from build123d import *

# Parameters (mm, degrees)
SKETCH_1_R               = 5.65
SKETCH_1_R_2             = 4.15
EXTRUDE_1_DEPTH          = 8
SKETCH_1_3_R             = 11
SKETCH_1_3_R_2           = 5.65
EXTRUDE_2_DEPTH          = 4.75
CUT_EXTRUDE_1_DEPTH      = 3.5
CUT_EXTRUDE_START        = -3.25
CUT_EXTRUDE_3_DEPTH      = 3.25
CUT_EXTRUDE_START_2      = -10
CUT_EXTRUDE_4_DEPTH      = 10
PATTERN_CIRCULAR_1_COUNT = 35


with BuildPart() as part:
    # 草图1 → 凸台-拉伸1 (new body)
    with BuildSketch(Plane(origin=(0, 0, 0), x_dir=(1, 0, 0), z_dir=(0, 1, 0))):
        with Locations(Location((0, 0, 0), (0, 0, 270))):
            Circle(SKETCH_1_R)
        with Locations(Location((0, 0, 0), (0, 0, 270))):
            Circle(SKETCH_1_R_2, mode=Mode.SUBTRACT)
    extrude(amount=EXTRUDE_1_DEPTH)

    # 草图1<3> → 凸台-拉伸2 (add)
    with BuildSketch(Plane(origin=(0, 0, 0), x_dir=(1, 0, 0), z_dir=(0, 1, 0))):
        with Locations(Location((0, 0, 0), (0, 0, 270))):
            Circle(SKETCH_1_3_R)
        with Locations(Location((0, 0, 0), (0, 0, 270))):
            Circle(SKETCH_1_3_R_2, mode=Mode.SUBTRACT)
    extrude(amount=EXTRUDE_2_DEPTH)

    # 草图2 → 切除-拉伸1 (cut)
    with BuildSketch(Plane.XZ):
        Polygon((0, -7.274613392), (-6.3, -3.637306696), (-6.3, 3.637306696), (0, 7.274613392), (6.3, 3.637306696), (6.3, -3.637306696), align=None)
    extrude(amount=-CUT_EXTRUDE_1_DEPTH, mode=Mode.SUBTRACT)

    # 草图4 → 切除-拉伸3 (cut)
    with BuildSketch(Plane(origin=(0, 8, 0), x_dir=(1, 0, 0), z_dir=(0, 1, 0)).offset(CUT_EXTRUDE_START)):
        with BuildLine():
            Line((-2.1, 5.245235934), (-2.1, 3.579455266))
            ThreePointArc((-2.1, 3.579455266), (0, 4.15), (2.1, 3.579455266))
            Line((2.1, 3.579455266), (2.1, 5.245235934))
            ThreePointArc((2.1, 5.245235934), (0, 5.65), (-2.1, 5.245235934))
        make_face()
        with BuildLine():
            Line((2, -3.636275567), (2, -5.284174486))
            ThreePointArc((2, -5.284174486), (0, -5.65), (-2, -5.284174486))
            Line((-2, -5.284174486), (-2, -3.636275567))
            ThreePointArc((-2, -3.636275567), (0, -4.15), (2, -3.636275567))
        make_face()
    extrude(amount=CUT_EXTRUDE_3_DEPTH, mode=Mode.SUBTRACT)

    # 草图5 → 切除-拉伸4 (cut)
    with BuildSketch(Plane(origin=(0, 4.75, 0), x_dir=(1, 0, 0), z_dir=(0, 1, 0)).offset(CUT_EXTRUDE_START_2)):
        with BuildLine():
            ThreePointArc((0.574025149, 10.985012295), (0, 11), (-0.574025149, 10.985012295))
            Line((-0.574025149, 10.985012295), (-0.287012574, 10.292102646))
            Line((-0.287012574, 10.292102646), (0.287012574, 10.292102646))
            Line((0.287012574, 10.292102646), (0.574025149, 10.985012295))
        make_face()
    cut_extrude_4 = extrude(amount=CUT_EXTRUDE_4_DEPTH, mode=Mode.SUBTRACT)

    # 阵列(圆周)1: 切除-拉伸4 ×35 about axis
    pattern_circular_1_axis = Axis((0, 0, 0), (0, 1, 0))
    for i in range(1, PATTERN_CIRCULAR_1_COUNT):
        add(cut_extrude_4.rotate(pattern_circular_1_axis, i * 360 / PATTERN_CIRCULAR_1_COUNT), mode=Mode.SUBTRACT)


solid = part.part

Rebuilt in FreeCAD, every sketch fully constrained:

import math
import FreeCAD as App
import Part
import Sketcher
from FreeCAD import Vector
Q = App.Units.Quantity


def add_polygon(sketch, points):
    """Adds a closed chain of lines whose ends are joined by coincident constraints."""
    first, n = sketch.GeometryCount, len(points)
    for a, b in zip(points, points[1:] + points[:1]):
        sketch.addGeometry(Part.LineSegment(App.Vector(*a, 0), App.Vector(*b, 0)), False)
    for i in range(n):
        sketch.addConstraint(Sketcher.Constraint("Coincident", first + i, 2, first + (i + 1) % n, 1))

doc = App.newDocument("Part")
body = doc.addObject("PartDesign::Body", "Body")

# Sketch on XZ plane
sketch1 = doc.addObject("Sketcher::SketchObject", "Sketch")
body.addObject(sketch1)
sketch1.AttachmentSupport = (doc.XZ_Plane, [""])
sketch1.MapMode = "FlatFace"
sketch1.addGeometry(Part.Circle(Vector(0, 0, 0), Vector(0, 0, 1), 5.65), False)
sketch1.addGeometry(Part.Circle(Vector(0, 0, 0), Vector(0, 0, 1), 4.15), False)
sketch1.addConstraint(Sketcher.Constraint("Coincident", 0, 3, -1, 1))
sketch1.addConstraint(Sketcher.Constraint("Coincident", 1, 3, -1, 1))
sketch1.addConstraint(Sketcher.Constraint("Diameter", 0, Q("11.3 mm")))
sketch1.addConstraint(Sketcher.Constraint("Diameter", 1, Q("8.3 mm")))
pad1 = doc.addObject("PartDesign::Pad", "Pad")
body.addObject(pad1)
pad1.Profile = sketch1
pad1.Length = 8
pad1.Reversed = True

# Sketch on XZ plane
sketch2 = doc.addObject("Sketcher::SketchObject", "Sketch001")
body.addObject(sketch2)
sketch2.AttachmentSupport = (doc.XZ_Plane, [""])
sketch2.MapMode = "FlatFace"
sketch2.addGeometry(Part.Circle(Vector(0, 0, 0), Vector(0, 0, 1), 11), False)
sketch2.addGeometry(Part.Circle(Vector(0, 0, 0), Vector(0, 0, 1), 5.65), False)
sketch2.addConstraint(Sketcher.Constraint("Coincident", 0, 3, -1, 1))
sketch2.addConstraint(Sketcher.Constraint("Coincident", 1, 3, -1, 1))
sketch2.addConstraint(Sketcher.Constraint("Diameter", 0, Q("22 mm")))
sketch2.addConstraint(Sketcher.Constraint("Diameter", 1, Q("11.3 mm")))
pad2 = doc.addObject("PartDesign::Pad", "Pad001")
body.addObject(pad2)
pad2.Profile = sketch2
pad2.Length = 4.75
pad2.Reversed = True

# Sketch on XZ plane
sketch3 = doc.addObject("Sketcher::SketchObject", "Sketch002")
body.addObject(sketch3)
sketch3.AttachmentSupport = (doc.XZ_Plane, [""])
sketch3.MapMode = "FlatFace"
add_polygon(sketch3, [(-6.3, -3.637307), (0, -7.274613), (6.3, -3.637307), (6.3, 3.637307), (0, 7.274613), (-6.3, 3.637307)])  # lines 0-5
sketch3.addConstraint(Sketcher.Constraint("Vertical", 2))
sketch3.addConstraint(Sketcher.Constraint("Vertical", 5))
sketch3.addConstraint(Sketcher.Constraint("Symmetric", 0, 2, 3, 2, -1, 1))
sketch3.addConstraint(Sketcher.Constraint("Symmetric", 1, 2, 4, 2, -1, 1))
sketch3.addConstraint(Sketcher.Constraint("PointOnObject", 0, 2, -2))
sketch3.addConstraint(Sketcher.Constraint("Parallel", 0, 3))
sketch3.addConstraint(Sketcher.Constraint("Horizontal", 2, 2, 4, 2))
sketch3.addConstraint(Sketcher.Constraint("Angle", 0, Q("-30 deg")))
sketch3.addConstraint(Sketcher.Constraint("DistanceX", -1, 1, 1, 2, Q("6.3 mm")))
sketch3.addConstraint(Sketcher.Constraint("DistanceY", 2, 1, 2, 2, Q("7.274613 mm")))
pocket1 = doc.addObject("PartDesign::Pocket", "Pocket")
body.addObject(pocket1)
pocket1.Profile = sketch3
pocket1.Length = 3.5

# Sketch on XZ plane
sketch4 = doc.addObject("Sketcher::SketchObject", "Sketch003")
body.addObject(sketch4)
sketch4.AttachmentSupport = (doc.XZ_Plane, [""])
sketch4.MapMode = "FlatFace"
sketch4.AttachmentOffset = App.Placement(Vector(0, 0, -4.75), App.Rotation())
sketch4.addGeometry(Part.LineSegment(Vector(-2.1, -5.245236, 0), Vector(-2.1, -3.579455, 0)), False)
sketch4.addGeometry(Part.ArcOfCircle(Part.Circle(Vector(0, 0, 0), Vector(0, 0, 1), 4.15), math.radians(-120.399358), math.radians(-59.600642)), False)
sketch4.addGeometry(Part.LineSegment(Vector(2.1, -3.579455, 0), Vector(2.1, -5.245236, 0)), False)
sketch4.addGeometry(Part.ArcOfCircle(Part.Circle(Vector(0, 0, 0), Vector(0, 0, 1), 5.65), math.radians(-111.819352), math.radians(-68.180648)), False)
sketch4.addGeometry(Part.LineSegment(Vector(2, 5.284174, 0), Vector(2, 3.636276, 0)), False)
sketch4.addGeometry(Part.ArcOfCircle(Part.Circle(Vector(0, 0, 0), Vector(0, 0, 1), 4.15), math.radians(61.18862), math.radians(118.81138)), False)
sketch4.addGeometry(Part.LineSegment(Vector(-2, 3.636276, 0), Vector(-2, 5.284174, 0)), False)
sketch4.addGeometry(Part.ArcOfCircle(Part.Circle(Vector(0, 0, 0), Vector(0, 0, 1), 5.65), math.radians(69.268915), math.radians(110.731085)), False)
sketch4.addConstraint(Sketcher.Constraint("Coincident", 0, 2, 1, 1))
sketch4.addConstraint(Sketcher.Constraint("Coincident", 1, 2, 2, 1))
sketch4.addConstraint(Sketcher.Constraint("Coincident", 2, 2, 3, 2))
sketch4.addConstraint(Sketcher.Constraint("Coincident", 3, 1, 0, 1))
sketch4.addConstraint(Sketcher.Constraint("Coincident", 4, 2, 5, 1))
sketch4.addConstraint(Sketcher.Constraint("Coincident", 5, 2, 6, 1))
sketch4.addConstraint(Sketcher.Constraint("Coincident", 6, 2, 7, 2))
sketch4.addConstraint(Sketcher.Constraint("Coincident", 7, 1, 4, 1))
sketch4.addConstraint(Sketcher.Constraint("Vertical", 0))
sketch4.addConstraint(Sketcher.Constraint("Vertical", 2))
sketch4.addConstraint(Sketcher.Constraint("Vertical", 4))
sketch4.addConstraint(Sketcher.Constraint("Vertical", 6))
sketch4.addConstraint(Sketcher.Constraint("Coincident", 1, 3, -1, 1))
sketch4.addConstraint(Sketcher.Constraint("Coincident", 3, 3, -1, 1))
sketch4.addConstraint(Sketcher.Constraint("Coincident", 5, 3, -1, 1))
sketch4.addConstraint(Sketcher.Constraint("Coincident", 7, 3, -1, 1))
sketch4.addConstraint(Sketcher.Constraint("Equal", 1, 5))
sketch4.addConstraint(Sketcher.Constraint("Equal", 3, 7))
sketch4.addConstraint(Sketcher.Constraint("Horizontal", 0, 2, 1, 2))
sketch4.addConstraint(Sketcher.Constraint("Horizontal", 4, 2, 5, 2))
sketch4.addConstraint(Sketcher.Constraint("Radius", 1, Q("4.15 mm")))
sketch4.addConstraint(Sketcher.Constraint("Radius", 3, Q("5.65 mm")))
sketch4.addConstraint(Sketcher.Constraint("DistanceX", -1, 1, 4, 2, Q("2 mm")))
sketch4.addConstraint(Sketcher.Constraint("DistanceX", 0, 2, -1, 1, Q("2.1 mm")))
pocket2 = doc.addObject("PartDesign::Pocket", "Pocket001")
body.addObject(pocket2)
pocket2.Profile = sketch4
pocket2.Length = 3.25

# Sketch on XZ plane
sketch5 = doc.addObject("Sketcher::SketchObject", "Sketch004")
body.addObject(sketch5)
sketch5.AttachmentSupport = (doc.XZ_Plane, [""])
sketch5.MapMode = "FlatFace"
sketch5.AttachmentOffset = App.Placement(Vector(0, 0, 5.25), App.Rotation())
sketch5.addGeometry(Part.ArcOfCircle(Part.Circle(Vector(0, 0, 0), Vector(0, 0, 1), 11), math.radians(-92.991288), math.radians(-87.008712)), False)
sketch5.addGeometry(Part.LineSegment(Vector(-0.574025, -10.985012, 0), Vector(-0.287013, -10.292103, 0)), False)
sketch5.addGeometry(Part.LineSegment(Vector(-0.287013, -10.292103, 0), Vector(0.287013, -10.292103, 0)), False)
sketch5.addGeometry(Part.LineSegment(Vector(0.287013, -10.292103, 0), Vector(0.574025, -10.985012, 0)), False)
sketch5.addConstraint(Sketcher.Constraint("Coincident", 0, 1, 1, 1))
sketch5.addConstraint(Sketcher.Constraint("Coincident", 1, 2, 2, 1))
sketch5.addConstraint(Sketcher.Constraint("Coincident", 2, 2, 3, 1))
sketch5.addConstraint(Sketcher.Constraint("Coincident", 3, 2, 0, 2))
sketch5.addConstraint(Sketcher.Constraint("Horizontal", 2))
sketch5.addConstraint(Sketcher.Constraint("Coincident", 0, 3, -1, 1))
sketch5.addConstraint(Sketcher.Constraint("Horizontal", 0, 1, 3, 2))
sketch5.addConstraint(Sketcher.Constraint("Equal", 1, 3))
sketch5.addConstraint(Sketcher.Constraint("Radius", 0, Q("11 mm")))
sketch5.addConstraint(Sketcher.Constraint("Angle", 1, Q("67.5 deg")))
sketch5.addConstraint(Sketcher.Constraint("Distance", 1, Q("0.75 mm")))
sketch5.addConstraint(Sketcher.Constraint("DistanceX", 2, 1, 2, 2, Q("0.574025 mm")))
pocket3 = doc.addObject("PartDesign::Pocket", "Pocket002")
body.addObject(pocket3)
pocket3.Profile = sketch5
pocket3.Length = 10
doc.recompute()

polarpattern = doc.addObject("PartDesign::PolarPattern", "PolarPattern")
body.addObject(polarpattern)
polarpattern.Originals = [pocket3]
polarpattern.Axis = (doc.Y_Axis, [""])
polarpattern.Angle = 360
polarpattern.Occurrences = 35
body.Tip = polarpattern

doc.recompute()
